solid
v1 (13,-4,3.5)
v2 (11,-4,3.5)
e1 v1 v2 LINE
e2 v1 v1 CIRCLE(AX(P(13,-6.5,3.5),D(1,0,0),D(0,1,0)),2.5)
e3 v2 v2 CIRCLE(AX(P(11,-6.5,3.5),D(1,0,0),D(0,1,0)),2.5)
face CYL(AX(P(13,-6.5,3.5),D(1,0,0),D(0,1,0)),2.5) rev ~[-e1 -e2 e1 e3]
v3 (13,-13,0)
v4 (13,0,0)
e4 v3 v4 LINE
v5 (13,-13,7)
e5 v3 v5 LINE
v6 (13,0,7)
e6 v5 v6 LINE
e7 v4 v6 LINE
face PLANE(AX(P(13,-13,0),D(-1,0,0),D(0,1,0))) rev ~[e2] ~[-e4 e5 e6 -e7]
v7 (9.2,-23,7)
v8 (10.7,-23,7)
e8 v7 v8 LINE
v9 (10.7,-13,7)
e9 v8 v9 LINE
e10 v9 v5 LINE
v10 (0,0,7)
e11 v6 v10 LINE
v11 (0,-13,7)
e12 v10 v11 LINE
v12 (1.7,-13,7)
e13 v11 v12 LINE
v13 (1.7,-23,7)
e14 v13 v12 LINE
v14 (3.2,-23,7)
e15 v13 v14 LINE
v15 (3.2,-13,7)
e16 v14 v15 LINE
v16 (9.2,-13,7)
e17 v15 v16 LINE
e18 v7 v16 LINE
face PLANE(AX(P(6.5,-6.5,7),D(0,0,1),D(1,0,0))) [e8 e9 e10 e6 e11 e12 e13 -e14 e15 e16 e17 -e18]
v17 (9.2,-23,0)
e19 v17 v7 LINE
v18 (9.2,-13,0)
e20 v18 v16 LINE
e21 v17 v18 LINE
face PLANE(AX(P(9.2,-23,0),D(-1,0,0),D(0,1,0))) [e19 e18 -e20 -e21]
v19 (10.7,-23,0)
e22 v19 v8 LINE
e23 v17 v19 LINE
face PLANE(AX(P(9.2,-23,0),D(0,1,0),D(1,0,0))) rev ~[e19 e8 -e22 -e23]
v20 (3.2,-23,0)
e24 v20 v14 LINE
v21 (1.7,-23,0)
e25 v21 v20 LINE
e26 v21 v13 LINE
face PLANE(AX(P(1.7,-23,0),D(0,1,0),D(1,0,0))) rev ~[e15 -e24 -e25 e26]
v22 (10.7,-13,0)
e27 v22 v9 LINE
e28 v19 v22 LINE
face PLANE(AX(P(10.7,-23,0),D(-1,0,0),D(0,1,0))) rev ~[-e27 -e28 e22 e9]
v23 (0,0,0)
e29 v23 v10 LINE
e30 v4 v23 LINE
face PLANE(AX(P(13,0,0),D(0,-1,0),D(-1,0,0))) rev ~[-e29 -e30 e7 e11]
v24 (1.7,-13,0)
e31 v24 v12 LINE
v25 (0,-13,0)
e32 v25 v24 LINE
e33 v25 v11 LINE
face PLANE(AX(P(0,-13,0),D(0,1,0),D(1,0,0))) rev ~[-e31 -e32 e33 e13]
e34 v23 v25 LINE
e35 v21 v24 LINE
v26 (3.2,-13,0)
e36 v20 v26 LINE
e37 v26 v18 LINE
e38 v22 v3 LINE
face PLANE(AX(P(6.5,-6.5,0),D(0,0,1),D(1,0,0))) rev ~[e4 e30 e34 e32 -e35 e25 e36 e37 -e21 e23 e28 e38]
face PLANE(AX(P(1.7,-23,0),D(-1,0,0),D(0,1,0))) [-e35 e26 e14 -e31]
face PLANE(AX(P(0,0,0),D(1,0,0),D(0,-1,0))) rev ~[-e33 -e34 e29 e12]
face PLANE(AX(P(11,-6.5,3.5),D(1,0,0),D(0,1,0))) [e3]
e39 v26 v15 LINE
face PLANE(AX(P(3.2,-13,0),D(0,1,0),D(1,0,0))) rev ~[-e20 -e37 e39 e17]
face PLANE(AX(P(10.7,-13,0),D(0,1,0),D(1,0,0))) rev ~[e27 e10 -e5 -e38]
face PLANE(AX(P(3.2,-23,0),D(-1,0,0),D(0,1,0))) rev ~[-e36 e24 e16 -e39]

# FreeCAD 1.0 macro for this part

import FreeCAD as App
import Part
import Sketcher

V = App.Vector

doc = App.newDocument("Part")
body = doc.addObject("PartDesign::Body", "Body")

# Sketch on XY plane
sketch1 = body.newObject("Sketcher::SketchObject", "Sketch")
sketch1.AttachmentSupport = (doc.getObject("XY_Plane"), [""])
sketch1.MapMode = "FlatFace"
sketch1.addGeometry(Part.LineSegment(V(13, 0, 0), V(0, 0, 0)), False)
sketch1.addGeometry(Part.LineSegment(V(0, 0, 0), V(0, -13, 0)), False)
sketch1.addGeometry(Part.LineSegment(V(0, -13, 0), V(1.7, -13, 0)), False)
sketch1.addGeometry(Part.LineSegment(V(1.7, -13, 0), V(1.7, -23, 0)), False)
sketch1.addGeometry(Part.LineSegment(V(1.7, -23, 0), V(3.2, -23, 0)), False)
sketch1.addGeometry(Part.LineSegment(V(3.2, -23, 0), V(3.2, -13, 0)), False)
sketch1.addGeometry(Part.LineSegment(V(3.2, -13, 0), V(9.2, -13, 0)), False)
sketch1.addGeometry(Part.LineSegment(V(9.2, -13, 0), V(9.2, -23, 0)), False)
sketch1.addGeometry(Part.LineSegment(V(9.2, -23, 0), V(10.7, -23, 0)), False)
sketch1.addGeometry(Part.LineSegment(V(10.7, -23, 0), V(10.7, -13, 0)), False)
sketch1.addGeometry(Part.LineSegment(V(10.7, -13, 0), V(13, -13, 0)), False)
sketch1.addGeometry(Part.LineSegment(V(13, -13, 0), V(13, 0, 0)), False)
sketch1.addConstraint(Sketcher.Constraint("Coincident", 0, 2, 1, 1))
sketch1.addConstraint(Sketcher.Constraint("Coincident", 1, 2, 2, 1))
sketch1.addConstraint(Sketcher.Constraint("Coincident", 2, 2, 3, 1))
sketch1.addConstraint(Sketcher.Constraint("Coincident", 3, 2, 4, 1))
sketch1.addConstraint(Sketcher.Constraint("Coincident", 4, 2, 5, 1))
sketch1.addConstraint(Sketcher.Constraint("Coincident", 5, 2, 6, 1))
sketch1.addConstraint(Sketcher.Constraint("Coincident", 6, 2, 7, 1))
sketch1.addConstraint(Sketcher.Constraint("Coincident", 7, 2, 8, 1))
sketch1.addConstraint(Sketcher.Constraint("Coincident", 8, 2, 9, 1))
sketch1.addConstraint(Sketcher.Constraint("Coincident", 9, 2, 10, 1))
sketch1.addConstraint(Sketcher.Constraint("Coincident", 10, 2, 11, 1))
sketch1.addConstraint(Sketcher.Constraint("Coincident", 11, 2, 0, 1))
sketch1.addConstraint(Sketcher.Constraint("Horizontal", 0))
sketch1.addConstraint(Sketcher.Constraint("Vertical", 1))
sketch1.addConstraint(Sketcher.Constraint("Horizontal", 2))
sketch1.addConstraint(Sketcher.Constraint("Vertical", 3))
sketch1.addConstraint(Sketcher.Constraint("Horizontal", 4))
sketch1.addConstraint(Sketcher.Constraint("Vertical", 5))
sketch1.addConstraint(Sketcher.Constraint("Horizontal", 6))
sketch1.addConstraint(Sketcher.Constraint("Vertical", 7))
sketch1.addConstraint(Sketcher.Constraint("Horizontal", 8))
sketch1.addConstraint(Sketcher.Constraint("Vertical", 9))
sketch1.addConstraint(Sketcher.Constraint("Horizontal", 10))
sketch1.addConstraint(Sketcher.Constraint("Vertical", 11))
sketch1.addConstraint(Sketcher.Constraint("Coincident", 0, 2, -1, 1))
sketch1.addConstraint(Sketcher.Constraint("Horizontal", 2, 2, 5, 2))
sketch1.addConstraint(Sketcher.Constraint("Horizontal", 4, 2, 7, 2))
sketch1.addConstraint(Sketcher.Constraint("Horizontal", 6, 2, 9, 2))
sketch1.addConstraint(Sketcher.Constraint("Equal", 4, 8))
sketch1.addConstraint(Sketcher.Constraint("Equal", 0, 1))
sketch1.addConstraint(Sketcher.Constraint("DistanceX", 0, 2, 0, 1, 13.0))
sketch1.addConstraint(Sketcher.Constraint("DistanceX", 6, 1, 6, 2, 6.0))
sketch1.addConstraint(Sketcher.Constraint("DistanceY", 3, 2, 3, 1, 10.0))
sketch1.addConstraint(Sketcher.Constraint("DistanceX", 2, 1, 2, 2, 1.7))
sketch1.addConstraint(Sketcher.Constraint("DistanceX", 4, 1, 4, 2, 1.5))
pad1 = body.newObject("PartDesign::Pad", "Pad")
pad1.Profile = sketch1
pad1.Length = 7

# Sketch on YZ plane
sketch2 = body.newObject("Sketcher::SketchObject", "Sketch001")
sketch2.AttachmentSupport = (doc.getObject("YZ_Plane"), [""])
sketch2.MapMode = "FlatFace"
sketch2.AttachmentOffset = App.Placement(V(0, 0, 13), App.Rotation())
sketch2.addGeometry(Part.Circle(V(-6.5, 3.5, 0), V(0, 0, 1), 2.5), False)
sketch2.addConstraint(Sketcher.Constraint("Diameter", 0, 5.0))
sketch2.addConstraint(Sketcher.Constraint("DistanceX", 0, 3, -1, 1, 6.5))
sketch2.addConstraint(Sketcher.Constraint("DistanceY", -1, 1, 0, 3, 3.5))
pocket1 = body.newObject("PartDesign::Pocket", "Pocket")
pocket1.Profile = sketch2
pocket1.Length = 2

doc.recompute()
